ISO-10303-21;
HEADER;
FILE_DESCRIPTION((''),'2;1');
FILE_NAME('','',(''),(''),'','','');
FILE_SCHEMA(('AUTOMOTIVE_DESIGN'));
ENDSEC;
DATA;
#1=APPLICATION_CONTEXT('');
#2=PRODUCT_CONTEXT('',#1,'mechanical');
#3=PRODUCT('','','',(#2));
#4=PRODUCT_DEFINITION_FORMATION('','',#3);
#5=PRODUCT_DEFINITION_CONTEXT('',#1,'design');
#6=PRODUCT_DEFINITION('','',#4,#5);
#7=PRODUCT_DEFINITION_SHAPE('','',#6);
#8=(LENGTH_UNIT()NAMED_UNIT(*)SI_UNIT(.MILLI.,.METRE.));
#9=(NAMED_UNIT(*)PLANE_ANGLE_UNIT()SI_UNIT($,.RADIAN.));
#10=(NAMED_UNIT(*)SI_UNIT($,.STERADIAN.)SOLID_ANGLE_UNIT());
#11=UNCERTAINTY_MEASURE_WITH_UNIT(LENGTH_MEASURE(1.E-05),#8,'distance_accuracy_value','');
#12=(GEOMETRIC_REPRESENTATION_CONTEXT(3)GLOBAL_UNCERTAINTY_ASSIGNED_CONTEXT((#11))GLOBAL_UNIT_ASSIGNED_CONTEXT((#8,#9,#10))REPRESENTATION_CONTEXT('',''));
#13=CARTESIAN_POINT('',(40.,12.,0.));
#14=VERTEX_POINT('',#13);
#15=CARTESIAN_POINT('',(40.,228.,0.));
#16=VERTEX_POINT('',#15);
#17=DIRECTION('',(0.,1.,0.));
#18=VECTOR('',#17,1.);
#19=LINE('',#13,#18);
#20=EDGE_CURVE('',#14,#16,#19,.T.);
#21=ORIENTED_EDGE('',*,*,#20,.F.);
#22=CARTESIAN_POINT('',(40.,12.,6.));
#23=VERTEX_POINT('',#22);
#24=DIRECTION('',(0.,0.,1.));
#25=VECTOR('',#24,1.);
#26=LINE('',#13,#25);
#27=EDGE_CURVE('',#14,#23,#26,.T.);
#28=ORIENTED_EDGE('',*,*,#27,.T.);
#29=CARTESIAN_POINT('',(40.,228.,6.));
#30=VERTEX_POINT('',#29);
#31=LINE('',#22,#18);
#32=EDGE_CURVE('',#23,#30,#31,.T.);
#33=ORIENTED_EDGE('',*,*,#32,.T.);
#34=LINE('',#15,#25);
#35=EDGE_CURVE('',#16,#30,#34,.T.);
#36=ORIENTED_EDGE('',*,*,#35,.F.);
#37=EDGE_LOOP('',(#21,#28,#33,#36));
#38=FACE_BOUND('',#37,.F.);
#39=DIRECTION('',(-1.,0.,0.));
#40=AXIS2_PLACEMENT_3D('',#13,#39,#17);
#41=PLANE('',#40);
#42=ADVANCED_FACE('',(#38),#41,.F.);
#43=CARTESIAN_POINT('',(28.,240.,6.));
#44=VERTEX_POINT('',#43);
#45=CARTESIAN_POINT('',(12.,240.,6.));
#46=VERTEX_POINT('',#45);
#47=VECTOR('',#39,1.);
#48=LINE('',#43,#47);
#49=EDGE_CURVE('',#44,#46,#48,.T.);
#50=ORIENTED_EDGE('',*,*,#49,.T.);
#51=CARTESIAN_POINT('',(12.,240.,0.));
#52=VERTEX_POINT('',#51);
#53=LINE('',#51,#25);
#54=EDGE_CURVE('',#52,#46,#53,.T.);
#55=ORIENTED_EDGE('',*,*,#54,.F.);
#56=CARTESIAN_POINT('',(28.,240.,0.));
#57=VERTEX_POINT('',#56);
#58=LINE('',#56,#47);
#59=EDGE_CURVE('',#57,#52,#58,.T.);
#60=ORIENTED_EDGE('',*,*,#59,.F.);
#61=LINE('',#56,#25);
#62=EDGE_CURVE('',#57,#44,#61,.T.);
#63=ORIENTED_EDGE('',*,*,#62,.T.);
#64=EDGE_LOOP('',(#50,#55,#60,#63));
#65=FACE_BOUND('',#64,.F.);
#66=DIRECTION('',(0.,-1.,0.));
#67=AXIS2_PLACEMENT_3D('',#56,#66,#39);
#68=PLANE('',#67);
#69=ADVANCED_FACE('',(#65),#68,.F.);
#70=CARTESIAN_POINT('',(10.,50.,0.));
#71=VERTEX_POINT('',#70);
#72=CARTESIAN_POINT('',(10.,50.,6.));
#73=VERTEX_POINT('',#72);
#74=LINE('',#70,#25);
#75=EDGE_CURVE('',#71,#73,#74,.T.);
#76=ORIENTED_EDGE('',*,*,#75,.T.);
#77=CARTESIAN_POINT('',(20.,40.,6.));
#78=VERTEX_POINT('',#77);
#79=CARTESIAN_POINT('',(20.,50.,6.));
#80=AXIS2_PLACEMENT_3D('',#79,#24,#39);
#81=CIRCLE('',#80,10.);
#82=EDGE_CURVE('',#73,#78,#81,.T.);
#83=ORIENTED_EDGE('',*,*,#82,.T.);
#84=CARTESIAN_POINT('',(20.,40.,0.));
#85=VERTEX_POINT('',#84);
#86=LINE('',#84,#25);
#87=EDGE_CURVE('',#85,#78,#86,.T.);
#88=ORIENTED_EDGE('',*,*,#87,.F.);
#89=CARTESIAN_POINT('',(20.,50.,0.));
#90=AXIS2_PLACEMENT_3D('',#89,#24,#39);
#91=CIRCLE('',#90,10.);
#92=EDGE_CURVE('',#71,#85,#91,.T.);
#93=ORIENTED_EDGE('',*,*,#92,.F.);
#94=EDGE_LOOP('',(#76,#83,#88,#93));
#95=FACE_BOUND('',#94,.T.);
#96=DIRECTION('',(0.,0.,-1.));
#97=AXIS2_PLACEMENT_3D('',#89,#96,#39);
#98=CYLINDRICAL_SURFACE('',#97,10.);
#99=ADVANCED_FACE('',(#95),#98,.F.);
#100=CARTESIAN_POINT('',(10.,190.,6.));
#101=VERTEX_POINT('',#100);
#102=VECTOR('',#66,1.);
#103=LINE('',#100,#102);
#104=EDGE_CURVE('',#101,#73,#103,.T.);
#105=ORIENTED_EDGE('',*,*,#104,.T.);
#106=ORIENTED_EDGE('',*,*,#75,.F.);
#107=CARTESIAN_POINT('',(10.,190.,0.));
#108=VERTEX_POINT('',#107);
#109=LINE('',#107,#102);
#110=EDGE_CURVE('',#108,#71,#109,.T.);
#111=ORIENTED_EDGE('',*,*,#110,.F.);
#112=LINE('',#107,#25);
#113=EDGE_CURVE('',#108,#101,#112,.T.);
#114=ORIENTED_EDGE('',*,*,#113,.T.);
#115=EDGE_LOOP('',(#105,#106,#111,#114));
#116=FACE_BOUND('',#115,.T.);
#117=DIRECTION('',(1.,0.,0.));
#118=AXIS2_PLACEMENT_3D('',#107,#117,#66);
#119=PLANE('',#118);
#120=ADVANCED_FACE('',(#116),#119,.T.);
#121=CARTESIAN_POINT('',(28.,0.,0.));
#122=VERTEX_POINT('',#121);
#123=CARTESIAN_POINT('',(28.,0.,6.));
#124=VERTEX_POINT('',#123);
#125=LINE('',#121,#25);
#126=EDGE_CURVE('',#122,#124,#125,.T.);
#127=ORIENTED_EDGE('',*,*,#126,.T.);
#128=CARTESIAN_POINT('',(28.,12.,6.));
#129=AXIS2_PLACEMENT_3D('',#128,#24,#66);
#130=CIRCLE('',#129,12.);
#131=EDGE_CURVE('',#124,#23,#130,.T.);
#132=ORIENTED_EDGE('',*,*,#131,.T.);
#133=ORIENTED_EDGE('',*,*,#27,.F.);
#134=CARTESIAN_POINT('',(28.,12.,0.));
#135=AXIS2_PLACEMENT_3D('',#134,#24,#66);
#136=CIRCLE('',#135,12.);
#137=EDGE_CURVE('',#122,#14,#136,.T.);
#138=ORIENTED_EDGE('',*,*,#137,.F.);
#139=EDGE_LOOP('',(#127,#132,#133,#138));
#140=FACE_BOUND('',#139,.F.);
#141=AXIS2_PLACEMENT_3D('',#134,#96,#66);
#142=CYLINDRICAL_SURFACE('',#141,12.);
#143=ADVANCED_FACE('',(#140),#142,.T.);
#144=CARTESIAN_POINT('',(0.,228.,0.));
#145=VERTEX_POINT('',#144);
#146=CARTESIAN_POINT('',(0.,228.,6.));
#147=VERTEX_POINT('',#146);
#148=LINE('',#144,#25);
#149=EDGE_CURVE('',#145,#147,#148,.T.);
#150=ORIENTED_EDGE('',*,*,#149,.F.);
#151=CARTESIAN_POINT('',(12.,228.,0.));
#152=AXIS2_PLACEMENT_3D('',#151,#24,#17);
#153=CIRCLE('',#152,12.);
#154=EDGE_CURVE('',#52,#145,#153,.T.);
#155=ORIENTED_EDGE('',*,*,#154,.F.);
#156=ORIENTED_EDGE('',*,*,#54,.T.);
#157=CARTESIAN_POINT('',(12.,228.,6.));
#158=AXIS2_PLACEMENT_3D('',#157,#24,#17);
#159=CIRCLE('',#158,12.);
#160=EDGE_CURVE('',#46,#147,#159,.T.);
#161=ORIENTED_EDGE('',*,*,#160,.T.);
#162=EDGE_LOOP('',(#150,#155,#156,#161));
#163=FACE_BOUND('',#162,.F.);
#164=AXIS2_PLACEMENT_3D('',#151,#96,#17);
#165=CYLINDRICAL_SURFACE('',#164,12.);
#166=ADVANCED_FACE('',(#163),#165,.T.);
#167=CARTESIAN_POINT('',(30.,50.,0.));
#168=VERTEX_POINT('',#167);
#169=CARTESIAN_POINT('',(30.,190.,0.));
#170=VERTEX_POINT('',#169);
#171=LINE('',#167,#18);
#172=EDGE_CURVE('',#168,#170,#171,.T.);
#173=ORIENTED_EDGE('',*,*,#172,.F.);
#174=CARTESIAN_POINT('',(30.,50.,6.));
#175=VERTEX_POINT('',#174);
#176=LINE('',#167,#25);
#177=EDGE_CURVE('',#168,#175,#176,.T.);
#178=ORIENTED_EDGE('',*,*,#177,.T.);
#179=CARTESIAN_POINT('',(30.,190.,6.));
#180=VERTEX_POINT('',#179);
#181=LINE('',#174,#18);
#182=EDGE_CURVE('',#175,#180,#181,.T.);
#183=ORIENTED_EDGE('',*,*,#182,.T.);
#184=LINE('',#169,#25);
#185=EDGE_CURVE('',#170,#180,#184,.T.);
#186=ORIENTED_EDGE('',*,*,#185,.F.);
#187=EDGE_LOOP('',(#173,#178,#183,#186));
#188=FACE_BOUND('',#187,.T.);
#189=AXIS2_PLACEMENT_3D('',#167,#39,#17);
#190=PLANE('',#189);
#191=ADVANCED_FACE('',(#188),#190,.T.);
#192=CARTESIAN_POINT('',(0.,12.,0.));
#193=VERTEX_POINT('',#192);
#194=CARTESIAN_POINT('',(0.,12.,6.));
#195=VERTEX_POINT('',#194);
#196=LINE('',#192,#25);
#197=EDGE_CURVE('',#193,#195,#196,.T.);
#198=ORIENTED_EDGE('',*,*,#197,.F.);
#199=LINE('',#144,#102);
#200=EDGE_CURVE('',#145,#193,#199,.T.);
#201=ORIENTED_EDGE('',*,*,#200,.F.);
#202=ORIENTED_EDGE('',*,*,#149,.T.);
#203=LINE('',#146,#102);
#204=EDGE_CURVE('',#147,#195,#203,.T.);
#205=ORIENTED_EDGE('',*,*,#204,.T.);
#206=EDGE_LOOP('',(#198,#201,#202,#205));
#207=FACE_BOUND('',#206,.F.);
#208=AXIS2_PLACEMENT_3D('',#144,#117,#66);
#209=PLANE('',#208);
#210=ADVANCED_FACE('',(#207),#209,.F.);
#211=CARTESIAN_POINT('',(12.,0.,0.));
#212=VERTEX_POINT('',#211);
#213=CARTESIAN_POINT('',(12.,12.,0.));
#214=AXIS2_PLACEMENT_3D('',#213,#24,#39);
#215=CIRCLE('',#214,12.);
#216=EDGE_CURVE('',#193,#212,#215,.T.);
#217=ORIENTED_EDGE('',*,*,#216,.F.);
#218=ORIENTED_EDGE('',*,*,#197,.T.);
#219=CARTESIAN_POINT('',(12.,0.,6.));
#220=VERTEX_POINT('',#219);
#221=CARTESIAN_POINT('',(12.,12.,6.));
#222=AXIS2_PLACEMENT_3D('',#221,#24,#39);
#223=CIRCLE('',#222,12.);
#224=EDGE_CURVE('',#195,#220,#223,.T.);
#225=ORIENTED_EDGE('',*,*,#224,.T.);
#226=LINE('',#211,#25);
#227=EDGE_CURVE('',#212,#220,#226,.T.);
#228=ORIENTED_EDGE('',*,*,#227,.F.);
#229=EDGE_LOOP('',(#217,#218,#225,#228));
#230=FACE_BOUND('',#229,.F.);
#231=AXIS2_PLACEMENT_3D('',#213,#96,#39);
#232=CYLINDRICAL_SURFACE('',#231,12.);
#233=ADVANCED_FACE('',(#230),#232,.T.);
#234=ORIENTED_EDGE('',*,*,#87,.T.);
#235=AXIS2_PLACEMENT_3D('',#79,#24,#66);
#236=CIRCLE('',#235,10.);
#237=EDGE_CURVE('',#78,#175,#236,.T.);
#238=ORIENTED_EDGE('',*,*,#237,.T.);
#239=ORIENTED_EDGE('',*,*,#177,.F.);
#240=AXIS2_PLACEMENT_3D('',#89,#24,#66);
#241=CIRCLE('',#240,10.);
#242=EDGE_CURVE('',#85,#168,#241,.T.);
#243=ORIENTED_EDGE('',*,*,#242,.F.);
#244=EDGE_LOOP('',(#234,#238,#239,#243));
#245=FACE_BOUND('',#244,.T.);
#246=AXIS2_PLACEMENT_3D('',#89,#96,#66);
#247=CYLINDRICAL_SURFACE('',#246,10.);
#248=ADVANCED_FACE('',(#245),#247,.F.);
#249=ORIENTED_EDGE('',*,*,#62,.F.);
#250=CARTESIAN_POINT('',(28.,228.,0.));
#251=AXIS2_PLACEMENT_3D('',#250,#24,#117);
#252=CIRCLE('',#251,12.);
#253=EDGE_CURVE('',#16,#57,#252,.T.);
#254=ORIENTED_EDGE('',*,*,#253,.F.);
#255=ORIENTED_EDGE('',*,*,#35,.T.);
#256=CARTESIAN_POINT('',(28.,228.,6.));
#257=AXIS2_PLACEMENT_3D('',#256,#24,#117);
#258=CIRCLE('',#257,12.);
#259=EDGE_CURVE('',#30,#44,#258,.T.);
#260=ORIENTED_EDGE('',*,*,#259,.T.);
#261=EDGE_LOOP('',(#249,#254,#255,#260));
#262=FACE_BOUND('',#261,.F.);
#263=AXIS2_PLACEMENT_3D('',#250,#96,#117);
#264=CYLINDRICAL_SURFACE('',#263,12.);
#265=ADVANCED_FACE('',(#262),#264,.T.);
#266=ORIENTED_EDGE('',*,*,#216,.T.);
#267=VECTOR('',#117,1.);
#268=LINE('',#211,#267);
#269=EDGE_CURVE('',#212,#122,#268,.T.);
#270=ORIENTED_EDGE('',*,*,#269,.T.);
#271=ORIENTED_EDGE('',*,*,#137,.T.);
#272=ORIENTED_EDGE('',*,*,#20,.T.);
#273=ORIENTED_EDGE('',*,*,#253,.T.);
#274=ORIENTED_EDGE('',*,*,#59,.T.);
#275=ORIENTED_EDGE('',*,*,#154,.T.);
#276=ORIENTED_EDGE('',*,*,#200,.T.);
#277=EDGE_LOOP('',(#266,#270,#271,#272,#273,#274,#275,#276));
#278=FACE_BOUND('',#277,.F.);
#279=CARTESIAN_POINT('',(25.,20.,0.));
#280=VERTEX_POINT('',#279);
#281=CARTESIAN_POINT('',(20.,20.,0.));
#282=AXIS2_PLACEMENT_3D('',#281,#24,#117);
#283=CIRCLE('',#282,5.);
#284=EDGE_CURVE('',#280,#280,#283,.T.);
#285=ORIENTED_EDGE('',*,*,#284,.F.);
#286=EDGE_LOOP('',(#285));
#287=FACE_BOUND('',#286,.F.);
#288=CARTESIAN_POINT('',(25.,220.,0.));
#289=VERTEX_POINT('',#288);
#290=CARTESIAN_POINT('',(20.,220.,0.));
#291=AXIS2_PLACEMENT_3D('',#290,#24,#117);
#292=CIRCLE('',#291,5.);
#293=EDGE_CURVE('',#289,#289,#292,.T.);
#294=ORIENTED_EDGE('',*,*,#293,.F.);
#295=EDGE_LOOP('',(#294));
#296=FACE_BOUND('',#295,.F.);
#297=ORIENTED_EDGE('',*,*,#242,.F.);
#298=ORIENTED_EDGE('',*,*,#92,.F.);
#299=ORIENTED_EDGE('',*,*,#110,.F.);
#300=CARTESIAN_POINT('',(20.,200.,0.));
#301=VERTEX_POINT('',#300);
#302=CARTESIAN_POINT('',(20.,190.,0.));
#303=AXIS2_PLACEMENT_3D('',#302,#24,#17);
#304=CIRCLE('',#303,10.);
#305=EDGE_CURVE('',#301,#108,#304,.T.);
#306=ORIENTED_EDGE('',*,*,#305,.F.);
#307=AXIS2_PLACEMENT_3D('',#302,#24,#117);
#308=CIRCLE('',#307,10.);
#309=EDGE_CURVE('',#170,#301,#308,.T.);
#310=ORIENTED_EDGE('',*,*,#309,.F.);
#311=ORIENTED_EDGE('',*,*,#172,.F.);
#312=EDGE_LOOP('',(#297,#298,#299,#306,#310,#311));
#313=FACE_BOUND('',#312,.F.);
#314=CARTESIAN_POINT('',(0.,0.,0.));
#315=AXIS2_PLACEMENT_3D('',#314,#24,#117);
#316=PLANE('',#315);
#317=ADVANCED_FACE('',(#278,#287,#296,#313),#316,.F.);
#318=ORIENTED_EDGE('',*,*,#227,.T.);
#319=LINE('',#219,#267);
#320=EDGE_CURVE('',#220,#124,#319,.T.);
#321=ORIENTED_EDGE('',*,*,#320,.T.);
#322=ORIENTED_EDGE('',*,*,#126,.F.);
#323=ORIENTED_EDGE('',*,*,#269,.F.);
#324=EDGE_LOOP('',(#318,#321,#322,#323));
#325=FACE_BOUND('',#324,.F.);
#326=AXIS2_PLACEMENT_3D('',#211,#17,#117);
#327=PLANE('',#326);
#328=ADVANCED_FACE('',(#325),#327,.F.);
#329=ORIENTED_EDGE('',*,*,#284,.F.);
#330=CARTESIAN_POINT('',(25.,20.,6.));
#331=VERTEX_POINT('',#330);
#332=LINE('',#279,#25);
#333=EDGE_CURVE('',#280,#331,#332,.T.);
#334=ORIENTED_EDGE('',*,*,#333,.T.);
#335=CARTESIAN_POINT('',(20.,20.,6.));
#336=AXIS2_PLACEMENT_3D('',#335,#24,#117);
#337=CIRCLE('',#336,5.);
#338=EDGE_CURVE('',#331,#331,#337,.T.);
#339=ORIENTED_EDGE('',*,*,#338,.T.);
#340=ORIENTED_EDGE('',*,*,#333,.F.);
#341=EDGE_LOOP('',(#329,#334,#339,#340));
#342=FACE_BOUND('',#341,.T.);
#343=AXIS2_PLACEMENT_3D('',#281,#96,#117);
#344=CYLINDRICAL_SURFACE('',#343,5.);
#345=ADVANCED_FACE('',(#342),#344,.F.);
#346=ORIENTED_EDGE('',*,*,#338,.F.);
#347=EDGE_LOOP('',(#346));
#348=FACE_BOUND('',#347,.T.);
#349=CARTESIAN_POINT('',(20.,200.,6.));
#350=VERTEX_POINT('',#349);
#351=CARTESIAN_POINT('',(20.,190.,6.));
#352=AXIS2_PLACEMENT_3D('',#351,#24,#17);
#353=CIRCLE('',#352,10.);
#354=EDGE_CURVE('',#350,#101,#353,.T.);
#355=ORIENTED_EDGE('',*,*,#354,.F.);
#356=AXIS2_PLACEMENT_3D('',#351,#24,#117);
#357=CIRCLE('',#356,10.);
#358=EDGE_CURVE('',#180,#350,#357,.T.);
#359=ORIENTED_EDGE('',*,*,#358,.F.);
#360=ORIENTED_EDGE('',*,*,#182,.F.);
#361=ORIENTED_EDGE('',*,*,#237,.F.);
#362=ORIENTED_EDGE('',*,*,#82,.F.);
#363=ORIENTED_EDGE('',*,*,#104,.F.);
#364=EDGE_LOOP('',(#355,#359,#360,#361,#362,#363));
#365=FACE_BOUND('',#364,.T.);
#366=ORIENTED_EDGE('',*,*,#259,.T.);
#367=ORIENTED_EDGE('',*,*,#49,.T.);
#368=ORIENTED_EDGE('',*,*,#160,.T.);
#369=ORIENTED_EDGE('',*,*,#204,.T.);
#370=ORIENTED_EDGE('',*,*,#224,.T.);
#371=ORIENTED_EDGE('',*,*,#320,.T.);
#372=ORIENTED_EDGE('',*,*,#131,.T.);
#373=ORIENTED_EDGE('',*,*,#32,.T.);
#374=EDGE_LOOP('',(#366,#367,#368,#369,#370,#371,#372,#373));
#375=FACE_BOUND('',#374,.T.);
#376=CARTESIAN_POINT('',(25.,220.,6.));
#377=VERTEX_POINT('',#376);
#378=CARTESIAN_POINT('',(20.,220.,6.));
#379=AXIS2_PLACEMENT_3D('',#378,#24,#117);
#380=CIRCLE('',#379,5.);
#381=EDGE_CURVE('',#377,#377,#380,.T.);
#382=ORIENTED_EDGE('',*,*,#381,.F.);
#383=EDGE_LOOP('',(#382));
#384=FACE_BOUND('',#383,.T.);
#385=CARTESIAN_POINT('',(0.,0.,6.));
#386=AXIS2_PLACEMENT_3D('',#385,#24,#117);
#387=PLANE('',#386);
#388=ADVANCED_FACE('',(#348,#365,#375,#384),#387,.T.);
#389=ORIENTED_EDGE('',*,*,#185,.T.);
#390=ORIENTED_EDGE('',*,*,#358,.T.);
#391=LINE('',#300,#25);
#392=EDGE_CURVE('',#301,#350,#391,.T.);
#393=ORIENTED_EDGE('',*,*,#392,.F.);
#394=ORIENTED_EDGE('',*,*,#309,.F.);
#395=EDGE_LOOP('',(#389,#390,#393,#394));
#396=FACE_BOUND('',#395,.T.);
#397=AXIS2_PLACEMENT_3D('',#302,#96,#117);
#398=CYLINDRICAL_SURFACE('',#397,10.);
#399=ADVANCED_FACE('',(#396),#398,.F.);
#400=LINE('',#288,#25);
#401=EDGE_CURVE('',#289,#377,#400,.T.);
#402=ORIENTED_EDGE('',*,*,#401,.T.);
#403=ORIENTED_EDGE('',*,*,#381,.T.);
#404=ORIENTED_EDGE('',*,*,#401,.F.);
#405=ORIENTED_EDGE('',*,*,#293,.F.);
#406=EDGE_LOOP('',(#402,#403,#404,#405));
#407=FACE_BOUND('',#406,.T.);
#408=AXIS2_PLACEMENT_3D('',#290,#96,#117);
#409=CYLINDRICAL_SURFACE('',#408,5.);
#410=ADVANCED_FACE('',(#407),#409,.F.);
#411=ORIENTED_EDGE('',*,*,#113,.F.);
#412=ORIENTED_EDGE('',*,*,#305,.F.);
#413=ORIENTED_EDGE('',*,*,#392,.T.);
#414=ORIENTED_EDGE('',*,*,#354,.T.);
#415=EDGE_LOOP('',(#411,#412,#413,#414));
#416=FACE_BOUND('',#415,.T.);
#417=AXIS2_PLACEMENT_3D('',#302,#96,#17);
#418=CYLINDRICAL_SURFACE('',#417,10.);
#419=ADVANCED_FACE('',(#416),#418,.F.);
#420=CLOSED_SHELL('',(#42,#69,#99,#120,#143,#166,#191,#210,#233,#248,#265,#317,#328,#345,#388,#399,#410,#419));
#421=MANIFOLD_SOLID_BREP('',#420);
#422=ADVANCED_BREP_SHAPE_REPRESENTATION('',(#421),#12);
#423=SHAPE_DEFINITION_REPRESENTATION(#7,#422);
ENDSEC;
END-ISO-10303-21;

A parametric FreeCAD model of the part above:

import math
import FreeCAD as App
import Part
import Sketcher
Q = App.Units.Quantity

doc = App.newDocument("Part")
body = doc.addObject("PartDesign::Body", "Body")

sketch1 = body.newObject("Sketcher::SketchObject", "Sketch")
sketch1.AttachmentSupport = (doc.getObject("XY_Plane"), [""])
sketch1.MapMode = "FlatFace"
sketch1.addGeometry([
    Part.ArcOfCircle(Part.Circle(App.Vector(12, 12, 0), App.Vector(0, 0, 1), 12), math.radians(180), math.radians(270)),
    Part.LineSegment(App.Vector(12, 0, 0), App.Vector(28, 0, 0)),
    Part.ArcOfCircle(Part.Circle(App.Vector(28, 12, 0), App.Vector(0, 0, 1), 12), math.radians(-90), math.radians(0)),
    Part.LineSegment(App.Vector(40, 12, 0), App.Vector(40, 228, 0)),
    Part.ArcOfCircle(Part.Circle(App.Vector(28, 228, 0), App.Vector(0, 0, 1), 12), math.radians(0), math.radians(90)),
    Part.LineSegment(App.Vector(28, 240, 0), App.Vector(12, 240, 0)),
    Part.ArcOfCircle(Part.Circle(App.Vector(12, 228, 0), App.Vector(0, 0, 1), 12), math.radians(90), math.radians(180)),
    Part.LineSegment(App.Vector(0, 228, 0), App.Vector(0, 12, 0)),
    Part.Circle(App.Vector(20, 20, 0), App.Vector(0, 0, 1), 5),
    Part.LineSegment(App.Vector(30, 190, 0), App.Vector(30, 50, 0)),
    Part.ArcOfCircle(Part.Circle(App.Vector(20, 50, 0), App.Vector(0, 0, 1), 10), math.radians(180), math.radians(360)),
    Part.LineSegment(App.Vector(10, 50, 0), App.Vector(10, 190, 0)),
    Part.ArcOfCircle(Part.Circle(App.Vector(20, 190, 0), App.Vector(0, 0, 1), 10), math.radians(0), math.radians(180)),
    Part.Circle(App.Vector(20, 220, 0), App.Vector(0, 0, 1), 5),
], False)
sketch1.addConstraint([
    Sketcher.Constraint("Tangent", 0, 2, 1, 1),
    Sketcher.Constraint("Tangent", 1, 2, 2, 1),
    Sketcher.Constraint("Tangent", 2, 2, 3, 1),
    Sketcher.Constraint("Tangent", 3, 2, 4, 1),
    Sketcher.Constraint("Tangent", 4, 2, 5, 1),
    Sketcher.Constraint("Tangent", 5, 2, 6, 1),
    Sketcher.Constraint("Tangent", 6, 2, 7, 1),
    Sketcher.Constraint("Tangent", 7, 2, 0, 1),
    Sketcher.Constraint("Tangent", 9, 2, 10, 2),
    Sketcher.Constraint("Tangent", 10, 1, 11, 1),
    Sketcher.Constraint("Tangent", 11, 2, 12, 2),
    Sketcher.Constraint("Tangent", 12, 1, 9, 1),
    Sketcher.Constraint("Horizontal", 1),
    Sketcher.Constraint("Vertical", 3),
    Sketcher.Constraint("Horizontal", 5),
    Sketcher.Constraint("Vertical", 7),
    Sketcher.Constraint("Vertical", 9),
    Sketcher.Constraint("Vertical", 11),
    Sketcher.Constraint("Equal", 0, 2),
    Sketcher.Constraint("Equal", 2, 4),
    Sketcher.Constraint("Equal", 4, 6),
    Sketcher.Constraint("Equal", 8, 13),
    Sketcher.Constraint("PointOnObject", 0, 2, -1),
    Sketcher.Constraint("PointOnObject", 6, 2, -2),
    Sketcher.Constraint("Vertical", 8, 3, 10, 3),
    Sketcher.Constraint("Vertical", 12, 3, 13, 3),
    Sketcher.Constraint("Diameter", 8, Q("10 mm")),
    Sketcher.Constraint("Radius", 0, Q("12 mm")),
    Sketcher.Constraint("Radius", 10, Q("10 mm")),
    Sketcher.Constraint("DistanceX", -1, 1, 8, 3, Q("20 mm")),
    Sketcher.Constraint("DistanceY", -1, 1, 8, 3, Q("20 mm")),
    Sketcher.Constraint("DistanceX", -1, 1, 2, 2, Q("40 mm")),
    Sketcher.Constraint("DistanceY", -1, 1, 4, 2, Q("240 mm")),
    Sketcher.Constraint("DistanceY", 8, 3, 13, 3, Q("200 mm")),
    Sketcher.Constraint("DistanceY", 9, 2, 9, 1, Q("140 mm")),
    Sketcher.Constraint("DistanceY", -1, 1, 10, 3, Q("50 mm")),
])
pad1 = body.newObject("PartDesign::Pad", "Pad")
pad1.Profile = sketch1
pad1.Length = 6

doc.recompute()
